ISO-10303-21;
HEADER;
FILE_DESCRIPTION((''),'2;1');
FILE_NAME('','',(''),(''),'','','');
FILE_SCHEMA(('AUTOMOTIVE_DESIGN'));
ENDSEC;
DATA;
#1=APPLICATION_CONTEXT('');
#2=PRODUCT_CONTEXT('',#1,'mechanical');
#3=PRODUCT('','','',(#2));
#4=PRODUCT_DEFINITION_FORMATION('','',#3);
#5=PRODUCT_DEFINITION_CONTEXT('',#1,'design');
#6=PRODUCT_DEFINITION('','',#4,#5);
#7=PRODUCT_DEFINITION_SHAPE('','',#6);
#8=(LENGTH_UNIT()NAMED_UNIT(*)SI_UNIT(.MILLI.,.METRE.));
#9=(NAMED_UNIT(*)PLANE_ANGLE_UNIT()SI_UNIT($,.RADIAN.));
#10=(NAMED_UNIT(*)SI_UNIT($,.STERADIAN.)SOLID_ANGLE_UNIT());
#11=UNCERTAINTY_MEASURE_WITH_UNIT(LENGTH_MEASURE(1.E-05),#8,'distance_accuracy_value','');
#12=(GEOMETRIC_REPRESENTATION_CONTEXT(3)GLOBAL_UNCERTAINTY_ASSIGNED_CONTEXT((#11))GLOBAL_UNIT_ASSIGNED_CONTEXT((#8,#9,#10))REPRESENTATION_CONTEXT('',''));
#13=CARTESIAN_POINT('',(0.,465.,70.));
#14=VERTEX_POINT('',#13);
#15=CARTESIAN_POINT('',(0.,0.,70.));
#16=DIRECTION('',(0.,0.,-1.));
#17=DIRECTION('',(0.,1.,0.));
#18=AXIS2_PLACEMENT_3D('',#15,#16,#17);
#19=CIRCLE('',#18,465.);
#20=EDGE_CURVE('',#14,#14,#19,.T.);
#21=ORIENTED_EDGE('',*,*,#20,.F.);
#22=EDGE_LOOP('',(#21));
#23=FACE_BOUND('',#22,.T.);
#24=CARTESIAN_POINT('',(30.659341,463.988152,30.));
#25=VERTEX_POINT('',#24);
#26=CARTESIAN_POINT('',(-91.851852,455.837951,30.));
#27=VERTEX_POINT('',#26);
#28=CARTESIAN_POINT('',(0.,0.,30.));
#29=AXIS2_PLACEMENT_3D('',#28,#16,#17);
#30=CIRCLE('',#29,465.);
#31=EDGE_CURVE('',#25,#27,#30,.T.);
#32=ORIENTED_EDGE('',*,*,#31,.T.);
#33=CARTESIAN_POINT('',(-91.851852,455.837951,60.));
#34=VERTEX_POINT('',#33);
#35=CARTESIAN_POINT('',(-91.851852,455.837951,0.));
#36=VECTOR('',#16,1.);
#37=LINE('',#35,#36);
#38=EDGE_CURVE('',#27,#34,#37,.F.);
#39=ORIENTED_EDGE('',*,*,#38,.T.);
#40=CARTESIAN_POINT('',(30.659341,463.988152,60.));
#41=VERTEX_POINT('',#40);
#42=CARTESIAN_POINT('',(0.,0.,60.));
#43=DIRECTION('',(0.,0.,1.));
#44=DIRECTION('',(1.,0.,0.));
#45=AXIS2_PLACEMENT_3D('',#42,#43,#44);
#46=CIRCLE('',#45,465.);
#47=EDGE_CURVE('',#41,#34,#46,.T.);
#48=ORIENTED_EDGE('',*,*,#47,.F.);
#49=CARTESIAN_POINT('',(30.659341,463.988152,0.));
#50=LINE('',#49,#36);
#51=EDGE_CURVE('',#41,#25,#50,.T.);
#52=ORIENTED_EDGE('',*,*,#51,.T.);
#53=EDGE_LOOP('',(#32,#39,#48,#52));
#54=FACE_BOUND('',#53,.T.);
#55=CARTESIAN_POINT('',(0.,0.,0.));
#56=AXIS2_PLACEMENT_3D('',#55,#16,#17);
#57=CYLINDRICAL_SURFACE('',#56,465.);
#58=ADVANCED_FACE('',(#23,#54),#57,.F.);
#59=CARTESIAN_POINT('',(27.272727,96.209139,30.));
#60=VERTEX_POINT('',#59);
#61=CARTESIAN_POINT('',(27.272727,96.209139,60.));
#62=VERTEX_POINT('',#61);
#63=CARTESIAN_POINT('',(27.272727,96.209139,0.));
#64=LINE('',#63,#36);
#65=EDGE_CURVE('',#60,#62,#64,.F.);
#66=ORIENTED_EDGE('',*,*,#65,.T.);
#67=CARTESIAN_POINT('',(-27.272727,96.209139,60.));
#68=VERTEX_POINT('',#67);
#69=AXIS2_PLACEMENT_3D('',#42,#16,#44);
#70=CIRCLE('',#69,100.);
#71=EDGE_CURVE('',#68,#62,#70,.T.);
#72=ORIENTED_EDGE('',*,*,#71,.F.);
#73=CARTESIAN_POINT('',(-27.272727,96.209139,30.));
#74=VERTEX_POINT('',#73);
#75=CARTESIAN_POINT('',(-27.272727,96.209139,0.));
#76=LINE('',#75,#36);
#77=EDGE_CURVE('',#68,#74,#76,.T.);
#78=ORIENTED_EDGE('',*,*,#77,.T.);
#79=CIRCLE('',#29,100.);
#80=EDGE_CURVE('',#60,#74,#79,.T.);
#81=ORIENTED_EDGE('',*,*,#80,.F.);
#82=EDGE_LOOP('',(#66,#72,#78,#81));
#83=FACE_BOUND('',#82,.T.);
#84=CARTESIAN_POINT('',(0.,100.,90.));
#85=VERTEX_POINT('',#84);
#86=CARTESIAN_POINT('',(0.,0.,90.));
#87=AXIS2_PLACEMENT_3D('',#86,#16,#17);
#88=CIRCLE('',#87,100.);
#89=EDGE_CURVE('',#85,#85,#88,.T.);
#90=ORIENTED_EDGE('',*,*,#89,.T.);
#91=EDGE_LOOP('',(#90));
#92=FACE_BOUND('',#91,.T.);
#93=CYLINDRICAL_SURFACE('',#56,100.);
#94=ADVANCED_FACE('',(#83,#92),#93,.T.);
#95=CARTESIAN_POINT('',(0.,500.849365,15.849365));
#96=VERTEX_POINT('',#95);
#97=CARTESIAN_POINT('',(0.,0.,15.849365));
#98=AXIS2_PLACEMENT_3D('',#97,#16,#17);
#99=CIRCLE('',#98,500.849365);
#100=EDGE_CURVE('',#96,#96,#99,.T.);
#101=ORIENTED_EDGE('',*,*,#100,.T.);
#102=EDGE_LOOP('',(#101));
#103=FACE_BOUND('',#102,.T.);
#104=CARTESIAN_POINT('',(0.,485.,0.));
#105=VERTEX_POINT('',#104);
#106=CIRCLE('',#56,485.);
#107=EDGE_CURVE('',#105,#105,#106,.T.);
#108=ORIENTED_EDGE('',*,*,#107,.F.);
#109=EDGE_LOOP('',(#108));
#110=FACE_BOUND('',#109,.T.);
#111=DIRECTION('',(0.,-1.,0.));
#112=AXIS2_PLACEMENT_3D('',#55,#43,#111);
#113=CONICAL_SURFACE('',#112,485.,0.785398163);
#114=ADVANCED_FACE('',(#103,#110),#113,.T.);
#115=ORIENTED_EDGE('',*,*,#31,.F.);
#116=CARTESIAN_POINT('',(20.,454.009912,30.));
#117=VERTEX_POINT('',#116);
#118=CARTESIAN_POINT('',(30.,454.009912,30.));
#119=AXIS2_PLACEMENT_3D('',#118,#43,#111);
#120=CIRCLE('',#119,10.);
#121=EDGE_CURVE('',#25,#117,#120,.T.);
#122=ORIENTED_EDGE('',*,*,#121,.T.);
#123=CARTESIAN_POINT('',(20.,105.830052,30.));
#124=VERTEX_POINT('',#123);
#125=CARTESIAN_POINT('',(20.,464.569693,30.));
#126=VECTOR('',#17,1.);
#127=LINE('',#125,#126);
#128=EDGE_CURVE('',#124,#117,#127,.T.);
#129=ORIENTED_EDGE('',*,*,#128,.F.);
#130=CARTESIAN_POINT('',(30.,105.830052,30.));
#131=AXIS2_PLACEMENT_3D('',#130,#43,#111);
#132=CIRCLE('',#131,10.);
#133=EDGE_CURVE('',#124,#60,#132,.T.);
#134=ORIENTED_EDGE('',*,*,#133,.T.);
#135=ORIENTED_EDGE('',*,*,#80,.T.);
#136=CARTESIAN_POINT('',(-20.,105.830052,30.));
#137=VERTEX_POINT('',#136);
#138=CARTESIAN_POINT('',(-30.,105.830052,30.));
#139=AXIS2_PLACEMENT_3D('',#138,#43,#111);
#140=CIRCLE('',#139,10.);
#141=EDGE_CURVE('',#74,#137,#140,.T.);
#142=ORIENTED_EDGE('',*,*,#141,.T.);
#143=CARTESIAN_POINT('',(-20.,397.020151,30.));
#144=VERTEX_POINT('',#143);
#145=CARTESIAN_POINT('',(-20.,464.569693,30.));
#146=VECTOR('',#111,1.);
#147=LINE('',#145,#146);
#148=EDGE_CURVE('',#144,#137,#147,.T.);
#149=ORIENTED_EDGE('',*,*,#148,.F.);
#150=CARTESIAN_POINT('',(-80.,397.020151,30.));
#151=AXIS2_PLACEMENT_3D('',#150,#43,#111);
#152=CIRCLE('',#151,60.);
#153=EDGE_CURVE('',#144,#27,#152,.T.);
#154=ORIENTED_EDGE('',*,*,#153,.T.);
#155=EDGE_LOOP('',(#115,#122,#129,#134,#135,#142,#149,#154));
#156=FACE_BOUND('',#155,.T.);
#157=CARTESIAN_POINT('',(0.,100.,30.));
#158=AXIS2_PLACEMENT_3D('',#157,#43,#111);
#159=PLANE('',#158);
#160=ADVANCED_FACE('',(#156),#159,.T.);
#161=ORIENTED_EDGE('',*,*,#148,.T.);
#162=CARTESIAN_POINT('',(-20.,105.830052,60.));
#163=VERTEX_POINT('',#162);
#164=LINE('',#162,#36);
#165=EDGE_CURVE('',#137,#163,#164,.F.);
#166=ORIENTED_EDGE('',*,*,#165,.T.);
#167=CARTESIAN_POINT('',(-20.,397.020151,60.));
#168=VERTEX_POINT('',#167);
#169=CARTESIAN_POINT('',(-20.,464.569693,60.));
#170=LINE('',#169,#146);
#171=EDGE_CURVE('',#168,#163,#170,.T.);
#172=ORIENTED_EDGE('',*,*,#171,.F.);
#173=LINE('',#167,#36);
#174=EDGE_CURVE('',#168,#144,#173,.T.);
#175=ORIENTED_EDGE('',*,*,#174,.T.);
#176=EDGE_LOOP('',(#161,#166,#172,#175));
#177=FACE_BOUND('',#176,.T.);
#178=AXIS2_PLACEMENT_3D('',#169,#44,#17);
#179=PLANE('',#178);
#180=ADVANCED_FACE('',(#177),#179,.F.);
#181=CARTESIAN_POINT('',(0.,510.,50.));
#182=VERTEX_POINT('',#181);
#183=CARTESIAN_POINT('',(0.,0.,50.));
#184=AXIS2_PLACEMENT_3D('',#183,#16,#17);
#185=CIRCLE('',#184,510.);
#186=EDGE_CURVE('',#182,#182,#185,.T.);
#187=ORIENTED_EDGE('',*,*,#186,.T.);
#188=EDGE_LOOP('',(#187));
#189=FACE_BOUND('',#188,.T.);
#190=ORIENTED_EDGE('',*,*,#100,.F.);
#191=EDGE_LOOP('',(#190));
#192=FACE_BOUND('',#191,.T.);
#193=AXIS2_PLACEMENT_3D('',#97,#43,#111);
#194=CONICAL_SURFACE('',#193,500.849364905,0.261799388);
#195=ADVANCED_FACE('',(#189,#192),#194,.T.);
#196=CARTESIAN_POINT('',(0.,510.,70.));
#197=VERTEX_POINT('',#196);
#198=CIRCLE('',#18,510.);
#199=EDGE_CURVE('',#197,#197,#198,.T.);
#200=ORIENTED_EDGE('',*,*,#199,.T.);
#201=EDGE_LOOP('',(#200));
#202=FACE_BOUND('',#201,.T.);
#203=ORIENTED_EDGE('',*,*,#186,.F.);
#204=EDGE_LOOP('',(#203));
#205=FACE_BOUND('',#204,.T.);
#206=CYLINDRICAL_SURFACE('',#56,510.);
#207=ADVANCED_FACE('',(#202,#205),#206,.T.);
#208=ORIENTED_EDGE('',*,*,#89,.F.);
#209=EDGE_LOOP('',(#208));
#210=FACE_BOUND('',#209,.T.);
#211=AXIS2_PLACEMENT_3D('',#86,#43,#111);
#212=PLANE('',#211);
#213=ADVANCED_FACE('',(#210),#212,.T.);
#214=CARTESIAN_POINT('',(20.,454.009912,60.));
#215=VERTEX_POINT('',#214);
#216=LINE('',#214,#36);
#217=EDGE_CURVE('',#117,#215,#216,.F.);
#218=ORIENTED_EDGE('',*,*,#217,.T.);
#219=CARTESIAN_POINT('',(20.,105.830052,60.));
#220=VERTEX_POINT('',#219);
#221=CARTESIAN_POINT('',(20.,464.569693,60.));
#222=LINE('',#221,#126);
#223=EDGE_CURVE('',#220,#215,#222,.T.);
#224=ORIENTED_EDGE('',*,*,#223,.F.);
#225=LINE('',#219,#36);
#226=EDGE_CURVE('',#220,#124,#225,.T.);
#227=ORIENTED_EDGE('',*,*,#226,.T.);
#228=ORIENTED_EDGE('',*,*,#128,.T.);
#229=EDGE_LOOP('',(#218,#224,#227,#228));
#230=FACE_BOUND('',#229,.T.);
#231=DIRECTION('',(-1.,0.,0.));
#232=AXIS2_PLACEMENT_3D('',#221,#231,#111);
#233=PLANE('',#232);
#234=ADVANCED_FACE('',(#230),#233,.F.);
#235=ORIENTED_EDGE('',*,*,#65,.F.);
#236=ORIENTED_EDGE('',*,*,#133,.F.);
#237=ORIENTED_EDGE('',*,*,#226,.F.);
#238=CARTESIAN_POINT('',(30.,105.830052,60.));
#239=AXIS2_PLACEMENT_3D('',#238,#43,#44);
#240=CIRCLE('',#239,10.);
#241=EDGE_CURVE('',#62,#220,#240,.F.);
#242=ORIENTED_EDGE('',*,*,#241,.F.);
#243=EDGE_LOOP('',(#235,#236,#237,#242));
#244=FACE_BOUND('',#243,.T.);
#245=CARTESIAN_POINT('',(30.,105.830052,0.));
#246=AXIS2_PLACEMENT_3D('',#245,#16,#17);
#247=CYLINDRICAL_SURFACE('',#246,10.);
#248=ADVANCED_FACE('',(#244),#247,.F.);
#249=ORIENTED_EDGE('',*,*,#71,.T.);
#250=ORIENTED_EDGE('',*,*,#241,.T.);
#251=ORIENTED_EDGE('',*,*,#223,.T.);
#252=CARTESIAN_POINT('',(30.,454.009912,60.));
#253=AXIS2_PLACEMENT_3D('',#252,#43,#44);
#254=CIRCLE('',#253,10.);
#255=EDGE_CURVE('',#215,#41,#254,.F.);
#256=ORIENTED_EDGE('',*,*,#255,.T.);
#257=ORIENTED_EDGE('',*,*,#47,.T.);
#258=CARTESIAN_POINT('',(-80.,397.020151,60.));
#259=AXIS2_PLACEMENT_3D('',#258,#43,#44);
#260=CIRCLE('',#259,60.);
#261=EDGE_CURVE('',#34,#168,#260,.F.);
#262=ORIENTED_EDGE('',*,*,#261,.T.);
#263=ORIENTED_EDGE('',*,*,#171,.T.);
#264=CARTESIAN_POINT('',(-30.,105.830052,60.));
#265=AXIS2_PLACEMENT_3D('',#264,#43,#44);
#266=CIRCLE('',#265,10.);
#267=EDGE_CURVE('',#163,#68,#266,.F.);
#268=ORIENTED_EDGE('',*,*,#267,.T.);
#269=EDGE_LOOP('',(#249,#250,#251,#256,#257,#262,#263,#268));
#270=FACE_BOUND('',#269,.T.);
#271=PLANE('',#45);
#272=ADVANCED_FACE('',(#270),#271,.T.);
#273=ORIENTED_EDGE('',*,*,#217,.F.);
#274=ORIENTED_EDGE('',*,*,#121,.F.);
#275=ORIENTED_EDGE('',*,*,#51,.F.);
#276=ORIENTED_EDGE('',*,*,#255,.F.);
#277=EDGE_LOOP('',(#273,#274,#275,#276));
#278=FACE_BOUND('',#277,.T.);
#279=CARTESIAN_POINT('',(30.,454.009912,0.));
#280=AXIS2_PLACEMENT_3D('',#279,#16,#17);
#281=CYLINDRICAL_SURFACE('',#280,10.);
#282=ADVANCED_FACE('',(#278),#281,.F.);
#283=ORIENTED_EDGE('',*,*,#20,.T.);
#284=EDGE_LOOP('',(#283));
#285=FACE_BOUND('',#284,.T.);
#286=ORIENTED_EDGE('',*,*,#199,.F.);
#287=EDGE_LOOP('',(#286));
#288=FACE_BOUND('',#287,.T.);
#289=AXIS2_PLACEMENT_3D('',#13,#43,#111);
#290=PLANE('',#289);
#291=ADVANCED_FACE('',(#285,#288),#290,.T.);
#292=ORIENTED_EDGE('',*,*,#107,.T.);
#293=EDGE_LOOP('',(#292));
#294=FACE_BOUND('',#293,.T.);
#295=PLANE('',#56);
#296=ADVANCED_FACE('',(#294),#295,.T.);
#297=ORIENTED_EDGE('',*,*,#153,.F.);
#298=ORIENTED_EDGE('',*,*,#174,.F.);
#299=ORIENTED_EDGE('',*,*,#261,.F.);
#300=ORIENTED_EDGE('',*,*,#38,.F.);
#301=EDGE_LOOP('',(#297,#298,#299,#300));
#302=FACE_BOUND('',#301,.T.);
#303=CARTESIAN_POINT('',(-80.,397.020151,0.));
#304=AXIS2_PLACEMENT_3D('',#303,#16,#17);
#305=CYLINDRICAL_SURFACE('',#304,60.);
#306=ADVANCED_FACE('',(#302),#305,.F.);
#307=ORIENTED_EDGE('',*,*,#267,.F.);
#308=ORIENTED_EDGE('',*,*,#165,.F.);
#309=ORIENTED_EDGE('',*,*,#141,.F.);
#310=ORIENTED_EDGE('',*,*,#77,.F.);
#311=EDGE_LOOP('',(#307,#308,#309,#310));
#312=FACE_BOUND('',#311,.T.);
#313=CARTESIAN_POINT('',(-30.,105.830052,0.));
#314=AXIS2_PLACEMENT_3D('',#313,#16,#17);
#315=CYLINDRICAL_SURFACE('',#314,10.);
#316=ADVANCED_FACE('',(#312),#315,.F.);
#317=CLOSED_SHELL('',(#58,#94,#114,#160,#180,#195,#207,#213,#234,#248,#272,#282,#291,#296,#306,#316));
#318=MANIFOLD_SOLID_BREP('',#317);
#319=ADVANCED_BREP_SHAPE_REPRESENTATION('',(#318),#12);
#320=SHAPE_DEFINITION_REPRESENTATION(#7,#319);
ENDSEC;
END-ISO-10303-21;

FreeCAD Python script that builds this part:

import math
import FreeCAD as App
import Part
import Sketcher
Q = App.Units.Quantity


def edges_at(feature, points):
    """Names of the edges that pass closest to the given points."""
    edges = feature.Shape.Edges
    near = lambda p: min(range(len(edges)), key=lambda i: edges[i].distToShape(Part.Vertex(*p))[0])
    return sorted({f"Edge{near(p) + 1}" for p in points})


def add_polygon(sketch, points):
    """Adds a closed chain of lines whose ends are joined by coincident constraints."""
    first, n = sketch.GeometryCount, len(points)
    for a, b in zip(points, points[1:] + points[:1]):
        sketch.addGeometry(Part.LineSegment(App.Vector(*a, 0), App.Vector(*b, 0)), False)
    for i in range(n):
        sketch.addConstraint(Sketcher.Constraint("Coincident", first + i, 2, first + (i + 1) % n, 1))

doc = App.newDocument("Part")
body = doc.addObject("PartDesign::Body", "Body")

sketch1 = body.newObject("Sketcher::SketchObject", "Sketch")
sketch1.AttachmentSupport = (doc.getObject("YZ_Plane"), [""])
sketch1.MapMode = "FlatFace"
add_polygon(sketch1, [(0, 0), (485, 0), (501, 16), (510, 50), (510, 70), (465, 70), (465, 30), (100, 30), (100, 90), (0, 90)])
sketch1.addConstraint([
    Sketcher.Constraint("Horizontal", 0),
    Sketcher.Constraint("Vertical", 3),
    Sketcher.Constraint("Horizontal", 4),
    Sketcher.Constraint("Vertical", 5),
    Sketcher.Constraint("Horizontal", 6),
    Sketcher.Constraint("Vertical", 7),
    Sketcher.Constraint("Horizontal", 8),
    Sketcher.Constraint("Vertical", 9),
    Sketcher.Constraint("Coincident", 9, 2, -1, 1),
    Sketcher.Constraint("DistanceX", 0, 1, 0, 2, 485.0),
    Sketcher.Constraint("DistanceX", 4, 2, 4, 1, 45.0),
    Sketcher.Constraint("DistanceX", 6, 2, 6, 1, 365.0),
    Sketcher.Constraint("DistanceX", 8, 2, 8, 1, 100.0),
    Sketcher.Constraint("DistanceY", 3, 1, 3, 2, 20.0),
    Sketcher.Constraint("DistanceY", 5, 2, 5, 1, 40.0),
    Sketcher.Constraint("DistanceY", 7, 1, 7, 2, 60.0),
    Sketcher.Constraint("DistanceY", 9, 2, 9, 1, 90.0),
    Sketcher.Constraint("Angle", 1, Q("45 deg")),
    Sketcher.Constraint("Angle", 2, Q("75 deg")),
])
revolution = body.newObject("PartDesign::Revolution", "Revolution")
revolution.Profile = sketch1
revolution.ReferenceAxis = (sketch1, ["V_Axis"])
revolution.Angle = 360

sketch2 = body.newObject("Sketcher::SketchObject", "Sketch001")
sketch2.AttachmentSupport = (doc.getObject("XY_Plane"), [""])
sketch2.MapMode = "FlatFace"
sketch2.AttachmentOffset = App.Placement(App.Vector(0, 0, 30), App.Rotation())
sketch2.addGeometry([
    Part.LineSegment(App.Vector(-20, 465, 0), App.Vector(-20, 98, 0)),
    Part.ArcOfCircle(Part.Circle(App.Vector(0, 0, 0), App.Vector(0, 0, 1), 100), math.radians(78), math.radians(102)),
    Part.LineSegment(App.Vector(20, 98, 0), App.Vector(20, 465, 0)),
    Part.ArcOfCircle(Part.Circle(App.Vector(0, 0, 0), App.Vector(0, 0, 1), 465), math.radians(87.53), math.radians(92.47)),
], False)
sketch2.addConstraint([
    Sketcher.Constraint("Coincident", 0, 2, 1, 2),
    Sketcher.Constraint("Coincident", 1, 1, 2, 1),
    Sketcher.Constraint("Coincident", 2, 2, 3, 1),
    Sketcher.Constraint("Coincident", 3, 2, 0, 1),
    Sketcher.Constraint("Vertical", 0),
    Sketcher.Constraint("Vertical", 2),
    Sketcher.Constraint("Coincident", 1, 3, -1, 1),
    Sketcher.Constraint("Coincident", 3, 3, -1, 1),
    Sketcher.Constraint("Horizontal", 0, 2, 1, 1),
    Sketcher.Constraint("Radius", 1, 100.0),
    Sketcher.Constraint("Radius", 3, 465.0),
    Sketcher.Constraint("DistanceX", 0, 2, -1, 1, 20.0),
])
pad1 = body.newObject("PartDesign::Pad", "Pad")
pad1.Profile = sketch2
pad1.Length = 30
doc.recompute()

fillet = body.newObject("PartDesign::Fillet", "Fillet")
fillet.Base = (pad1, edges_at(pad1, [(-20, 464.57, 45)]))
fillet.Radius = 60
doc.recompute()

fillet2 = body.newObject("PartDesign::Fillet", "Fillet001")
fillet2.Base = (fillet, edges_at(fillet, [(20, 464.57, 45), (-20, 97.98, 45), (20, 97.98, 45)]))
fillet2.Radius = 10

doc.recompute()
